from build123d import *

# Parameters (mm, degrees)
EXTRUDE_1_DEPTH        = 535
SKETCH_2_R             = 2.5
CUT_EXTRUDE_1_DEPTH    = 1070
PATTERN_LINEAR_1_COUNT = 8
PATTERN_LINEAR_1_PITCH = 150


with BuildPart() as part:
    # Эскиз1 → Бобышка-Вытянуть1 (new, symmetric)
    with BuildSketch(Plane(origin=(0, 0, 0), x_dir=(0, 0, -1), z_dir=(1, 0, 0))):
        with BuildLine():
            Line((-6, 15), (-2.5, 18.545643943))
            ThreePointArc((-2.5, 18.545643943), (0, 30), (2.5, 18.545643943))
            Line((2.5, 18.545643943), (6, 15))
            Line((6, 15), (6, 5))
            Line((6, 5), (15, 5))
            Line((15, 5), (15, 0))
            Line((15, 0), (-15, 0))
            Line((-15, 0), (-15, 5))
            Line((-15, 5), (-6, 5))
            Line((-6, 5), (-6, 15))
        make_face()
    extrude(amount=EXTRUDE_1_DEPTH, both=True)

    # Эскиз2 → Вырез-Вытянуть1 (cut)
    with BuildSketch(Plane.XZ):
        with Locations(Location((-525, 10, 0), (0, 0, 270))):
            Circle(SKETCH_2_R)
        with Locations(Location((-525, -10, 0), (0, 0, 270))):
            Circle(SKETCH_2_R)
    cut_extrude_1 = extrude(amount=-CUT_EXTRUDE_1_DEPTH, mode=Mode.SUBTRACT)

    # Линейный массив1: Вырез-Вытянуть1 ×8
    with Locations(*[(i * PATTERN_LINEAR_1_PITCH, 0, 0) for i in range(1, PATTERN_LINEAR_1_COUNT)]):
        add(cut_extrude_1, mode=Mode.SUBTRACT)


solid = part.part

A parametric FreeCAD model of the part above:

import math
import FreeCAD as App
import Part
import Sketcher
from FreeCAD import Vector
Q = App.Units.Quantity

doc = App.newDocument("Part")
body = doc.addObject("PartDesign::Body", "Body")

sketch1 = body.newObject("Sketcher::SketchObject", "Sketch")
sketch1.AttachmentSupport = (doc.getObject("YZ_Plane"), [""])
sketch1.MapMode = "FlatFace"
sketch1.addGeometry([
    Part.LineSegment(Vector(18.5, 2.5, 0), Vector(15, 6, 0)),
    Part.LineSegment(Vector(15, 6, 0), Vector(5, 6, 0)),
    Part.LineSegment(Vector(5, 6, 0), Vector(5, 15, 0)),
    Part.LineSegment(Vector(5, 15, 0), Vector(0, 15, 0)),
    Part.LineSegment(Vector(0, 15, 0), Vector(0, -15, 0)),
    Part.LineSegment(Vector(0, -15, 0), Vector(5, -15, 0)),
    Part.LineSegment(Vector(5, -15, 0), Vector(5, -6, 0)),
    Part.LineSegment(Vector(5, -6, 0), Vector(15, -6, 0)),
    Part.LineSegment(Vector(15, -6, 0), Vector(18.5, -2.5, 0)),
    Part.ArcOfCircle(Part.Circle(Vector(24, 0, 0), Vector(0, 0, 1), 6), math.radians(-155), math.radians(155)),
], False)
sketch1.addConstraint([
    Sketcher.Constraint("Coincident", 0, 2, 1, 1),
    Sketcher.Constraint("Coincident", 1, 2, 2, 1),
    Sketcher.Constraint("Coincident", 2, 2, 3, 1),
    Sketcher.Constraint("Coincident", 3, 2, 4, 1),
    Sketcher.Constraint("Coincident", 4, 2, 5, 1),
    Sketcher.Constraint("Coincident", 5, 2, 6, 1),
    Sketcher.Constraint("Coincident", 6, 2, 7, 1),
    Sketcher.Constraint("Coincident", 7, 2, 8, 1),
    Sketcher.Constraint("Coincident", 8, 2, 9, 1),
    Sketcher.Constraint("Coincident", 9, 2, 0, 1),
    Sketcher.Constraint("Horizontal", 1),
    Sketcher.Constraint("Vertical", 2),
    Sketcher.Constraint("Horizontal", 3),
    Sketcher.Constraint("Vertical", 4),
    Sketcher.Constraint("Horizontal", 5),
    Sketcher.Constraint("Vertical", 6),
    Sketcher.Constraint("Horizontal", 7),
    Sketcher.Constraint("Symmetric", 3, 2, 4, 2, -1, 1),
    Sketcher.Constraint("Symmetric", 1, 2, 6, 2, -1),
    Sketcher.Constraint("Symmetric", 8, 2, 9, 2, -1),
    Sketcher.Constraint("Vertical", 0, 2, 7, 2),
    Sketcher.Constraint("Radius", 9, Q("6 mm")),
    Sketcher.Constraint("DistanceX", 1, 2, 1, 1, Q("10 mm")),
    Sketcher.Constraint("DistanceX", 3, 2, 3, 1, Q("5 mm")),
    Sketcher.Constraint("DistanceY", 2, 1, 2, 2, Q("9 mm")),
    Sketcher.Constraint("DistanceY", 4, 2, 4, 1, Q("30 mm")),
    Sketcher.Constraint("DistanceX", -1, 1, 9, 3, Q("24 mm")),
    Sketcher.Constraint("DistanceY", 8, 2, 9, 2, Q("5 mm")),
])
pad1 = body.newObject("PartDesign::Pad", "Pad")
pad1.Profile = sketch1
pad1.Length = 1070
pad1.Midplane = True

sketch2 = body.newObject("Sketcher::SketchObject", "Sketch001")
sketch2.AttachmentSupport = (doc.getObject("XZ_Plane"), [""])
sketch2.MapMode = "FlatFace"
sketch2.addGeometry([
    Part.Circle(Vector(-525, 10, 0), Vector(0, 0, 1), 2.5),
    Part.Circle(Vector(-525, -10, 0), Vector(0, 0, 1), 2.5),
], False)
sketch2.addConstraint([
    Sketcher.Constraint("Equal", 0, 1),
    Sketcher.Constraint("Symmetric", 0, 3, 1, 3, -1),
    Sketcher.Constraint("Diameter", 0, Q("5 mm")),
    Sketcher.Constraint("DistanceX", 0, 3, -1, 1, Q("525 mm")),
    Sketcher.Constraint("DistanceY", -1, 1, 0, 3, Q("10 mm")),
])
pocket1 = body.newObject("PartDesign::Pocket", "Pocket")
pocket1.Profile = sketch2
pocket1.Length = 1070
doc.recompute()

linearpattern = body.newObject("PartDesign::LinearPattern", "LinearPattern")
linearpattern.Originals = [pocket1]
linearpattern.Direction = (doc.getObject("X_Axis"), [""])
linearpattern.Mode = "offset"
linearpattern.Offset = 150
linearpattern.Occurrences = 8
body.Tip = linearpattern

doc.recompute()
